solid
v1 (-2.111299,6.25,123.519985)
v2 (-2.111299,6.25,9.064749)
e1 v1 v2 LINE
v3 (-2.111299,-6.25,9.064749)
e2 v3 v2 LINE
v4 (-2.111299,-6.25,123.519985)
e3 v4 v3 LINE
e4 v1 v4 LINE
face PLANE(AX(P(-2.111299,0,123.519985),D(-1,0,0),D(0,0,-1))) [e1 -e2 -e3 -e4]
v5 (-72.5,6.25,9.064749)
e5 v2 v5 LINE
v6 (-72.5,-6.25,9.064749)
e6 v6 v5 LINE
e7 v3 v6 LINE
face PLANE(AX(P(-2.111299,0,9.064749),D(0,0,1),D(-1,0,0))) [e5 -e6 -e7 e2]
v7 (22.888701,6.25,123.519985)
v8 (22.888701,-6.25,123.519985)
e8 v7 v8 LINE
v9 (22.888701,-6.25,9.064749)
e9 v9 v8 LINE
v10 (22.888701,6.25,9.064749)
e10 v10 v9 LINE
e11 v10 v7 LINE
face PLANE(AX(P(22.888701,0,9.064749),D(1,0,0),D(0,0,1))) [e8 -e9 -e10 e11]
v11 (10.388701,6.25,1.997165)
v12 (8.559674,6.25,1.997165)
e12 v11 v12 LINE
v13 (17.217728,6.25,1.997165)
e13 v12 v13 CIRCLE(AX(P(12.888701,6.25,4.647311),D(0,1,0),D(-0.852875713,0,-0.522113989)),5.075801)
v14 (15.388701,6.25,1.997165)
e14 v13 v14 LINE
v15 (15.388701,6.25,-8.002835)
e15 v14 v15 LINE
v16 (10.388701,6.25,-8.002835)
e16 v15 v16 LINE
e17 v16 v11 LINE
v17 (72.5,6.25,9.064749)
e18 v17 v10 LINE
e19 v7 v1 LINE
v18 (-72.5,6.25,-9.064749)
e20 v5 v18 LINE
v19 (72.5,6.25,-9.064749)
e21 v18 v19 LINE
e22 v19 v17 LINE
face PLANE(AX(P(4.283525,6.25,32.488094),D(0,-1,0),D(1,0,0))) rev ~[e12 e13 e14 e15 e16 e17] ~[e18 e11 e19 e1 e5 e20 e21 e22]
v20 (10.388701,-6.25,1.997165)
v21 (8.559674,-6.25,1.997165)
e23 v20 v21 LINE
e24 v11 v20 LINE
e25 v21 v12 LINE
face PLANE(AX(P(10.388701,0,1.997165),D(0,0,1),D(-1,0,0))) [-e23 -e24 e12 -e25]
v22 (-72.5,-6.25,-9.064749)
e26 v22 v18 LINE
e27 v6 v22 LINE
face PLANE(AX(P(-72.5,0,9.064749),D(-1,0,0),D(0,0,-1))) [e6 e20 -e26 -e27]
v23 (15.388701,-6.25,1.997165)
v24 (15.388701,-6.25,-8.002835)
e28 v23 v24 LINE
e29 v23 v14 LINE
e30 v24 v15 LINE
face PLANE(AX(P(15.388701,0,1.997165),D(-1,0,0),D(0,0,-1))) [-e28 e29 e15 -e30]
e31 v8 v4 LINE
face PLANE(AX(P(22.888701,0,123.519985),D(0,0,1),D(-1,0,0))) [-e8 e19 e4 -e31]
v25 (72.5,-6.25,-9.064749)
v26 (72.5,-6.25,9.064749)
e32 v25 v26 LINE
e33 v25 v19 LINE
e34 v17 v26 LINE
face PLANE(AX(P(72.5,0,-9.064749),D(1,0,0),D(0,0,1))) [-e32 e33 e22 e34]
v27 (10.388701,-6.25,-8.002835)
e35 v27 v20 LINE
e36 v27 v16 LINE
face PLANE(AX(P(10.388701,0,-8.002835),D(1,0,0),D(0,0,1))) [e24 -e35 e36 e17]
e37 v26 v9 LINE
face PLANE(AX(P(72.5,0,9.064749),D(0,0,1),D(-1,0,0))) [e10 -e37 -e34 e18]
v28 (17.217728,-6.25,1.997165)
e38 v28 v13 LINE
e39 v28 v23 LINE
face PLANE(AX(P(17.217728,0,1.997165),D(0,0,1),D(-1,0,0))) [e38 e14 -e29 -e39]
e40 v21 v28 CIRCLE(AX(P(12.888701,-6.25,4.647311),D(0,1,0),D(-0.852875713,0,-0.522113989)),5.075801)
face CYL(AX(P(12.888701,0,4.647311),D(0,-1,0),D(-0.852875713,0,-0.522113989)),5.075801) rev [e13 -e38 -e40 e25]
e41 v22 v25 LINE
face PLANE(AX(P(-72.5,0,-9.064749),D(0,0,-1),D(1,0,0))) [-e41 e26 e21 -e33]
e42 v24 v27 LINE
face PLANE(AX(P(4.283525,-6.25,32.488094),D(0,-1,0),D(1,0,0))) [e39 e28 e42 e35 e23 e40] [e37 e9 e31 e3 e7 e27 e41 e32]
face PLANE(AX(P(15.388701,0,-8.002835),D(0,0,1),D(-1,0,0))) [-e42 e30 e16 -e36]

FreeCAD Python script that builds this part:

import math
import FreeCAD as App
import Part
import Sketcher
from FreeCAD import Vector

doc = App.newDocument("Part")
body = doc.addObject("PartDesign::Body", "Body")

sketch1 = body.newObject("Sketcher::SketchObject", "Sketch")
sketch1.AttachmentSupport = (doc.getObject("XZ_Plane"), [""])
sketch1.MapMode = "FlatFace"
sketch1.addGeometry([
    Part.LineSegment(Vector(72.5, -9.1, 0), Vector(72.5, 9.1, 0)),
    Part.LineSegment(Vector(72.5, 9.1, 0), Vector(22.9, 9.1, 0)),
    Part.LineSegment(Vector(22.9, 9.1, 0), Vector(22.9, 123.5, 0)),
    Part.LineSegment(Vector(22.9, 123.5, 0), Vector(-2.1, 123.5, 0)),
    Part.LineSegment(Vector(-2.1, 123.5, 0), Vector(-2.1, 9.1, 0)),
    Part.LineSegment(Vector(-2.1, 9.1, 0), Vector(-72.5, 9.1, 0)),
    Part.LineSegment(Vector(-72.5, 9.1, 0), Vector(-72.5, -9.1, 0)),
    Part.LineSegment(Vector(-72.5, -9.1, 0), Vector(72.5, -9.1, 0)),
    Part.LineSegment(Vector(10.4, -8, 0), Vector(10.4, 2, 0)),
    Part.LineSegment(Vector(10.4, 2, 0), Vector(8.6, 2, 0)),
    Part.ArcOfCircle(Part.Circle(Vector(12.9, 4.6, 0), Vector(0, 0, 1), 5.1), math.radians(-31), math.radians(211)),
    Part.LineSegment(Vector(17.2, 2, 0), Vector(15.4, 2, 0)),
    Part.LineSegment(Vector(15.4, 2, 0), Vector(15.4, -8, 0)),
    Part.LineSegment(Vector(15.4, -8, 0), Vector(10.4, -8, 0)),
], False)
sketch1.addConstraint([
    Sketcher.Constraint("Coincident", 0, 2, 1, 1),
    Sketcher.Constraint("Coincident", 1, 2, 2, 1),
    Sketcher.Constraint("Coincident", 2, 2, 3, 1),
    Sketcher.Constraint("Coincident", 3, 2, 4, 1),
    Sketcher.Constraint("Coincident", 4, 2, 5, 1),
    Sketcher.Constraint("Coincident", 5, 2, 6, 1),
    Sketcher.Constraint("Coincident", 6, 2, 7, 1),
    Sketcher.Constraint("Coincident", 7, 2, 0, 1),
    Sketcher.Constraint("Coincident", 8, 2, 9, 1),
    Sketcher.Constraint("Coincident", 9, 2, 10, 2),
    Sketcher.Constraint("Coincident", 10, 1, 11, 1),
    Sketcher.Constraint("Coincident", 11, 2, 12, 1),
    Sketcher.Constraint("Coincident", 12, 2, 13, 1),
    Sketcher.Constraint("Coincident", 13, 2, 8, 1),
    Sketcher.Constraint("Vertical", 0),
    Sketcher.Constraint("Horizontal", 1),
    Sketcher.Constraint("Vertical", 2),
    Sketcher.Constraint("Horizontal", 3),
    Sketcher.Constraint("Vertical", 4),
    Sketcher.Constraint("Horizontal", 5),
    Sketcher.Constraint("Vertical", 6),
    Sketcher.Constraint("Horizontal", 7),
    Sketcher.Constraint("Vertical", 8),
    Sketcher.Constraint("Horizontal", 9),
    Sketcher.Constraint("Horizontal", 11),
    Sketcher.Constraint("Vertical", 12),
    Sketcher.Constraint("Horizontal", 13),
    Sketcher.Constraint("Symmetric", 0, 2, 6, 2, -1, 1),
    Sketcher.Constraint("Horizontal", 1, 2, 4, 2),
    Sketcher.Constraint("Horizontal", 9, 2, 10, 1),
    Sketcher.Constraint("Equal", 9, 11),
    Sketcher.Constraint("DistanceX", 3, 2, 3, 1, 25.0),
    Sketcher.Constraint("DistanceX", 7, 1, 7, 2, 145.0),
    Sketcher.Constraint("DistanceX", 13, 2, 13, 1, 5.0),
    Sketcher.Constraint("DistanceY", 8, 1, 8, 2, 10.0),
    Sketcher.Constraint("DistanceX", 10, 3, 1, 2, 10.0),
    Sketcher.Constraint("Radius", 10, 5.075801),
    Sketcher.Constraint("DistanceX", 1, 2, 1, 1, 49.611299),
    Sketcher.Constraint("DistanceY", 0, 1, 0, 2, 18.129498),
    Sketcher.Constraint("DistanceX", 9, 2, 9, 1, 1.829027),
    Sketcher.Constraint("DistanceY", 2, 1, 2, 2, 114.455236),
    Sketcher.Constraint("DistanceY", -1, 1, 10, 3, 4.647311),
])
pad1 = body.newObject("PartDesign::Pad", "Pad")
pad1.Profile = sketch1
pad1.Length = 12.5
pad1.Midplane = True

doc.recompute()
